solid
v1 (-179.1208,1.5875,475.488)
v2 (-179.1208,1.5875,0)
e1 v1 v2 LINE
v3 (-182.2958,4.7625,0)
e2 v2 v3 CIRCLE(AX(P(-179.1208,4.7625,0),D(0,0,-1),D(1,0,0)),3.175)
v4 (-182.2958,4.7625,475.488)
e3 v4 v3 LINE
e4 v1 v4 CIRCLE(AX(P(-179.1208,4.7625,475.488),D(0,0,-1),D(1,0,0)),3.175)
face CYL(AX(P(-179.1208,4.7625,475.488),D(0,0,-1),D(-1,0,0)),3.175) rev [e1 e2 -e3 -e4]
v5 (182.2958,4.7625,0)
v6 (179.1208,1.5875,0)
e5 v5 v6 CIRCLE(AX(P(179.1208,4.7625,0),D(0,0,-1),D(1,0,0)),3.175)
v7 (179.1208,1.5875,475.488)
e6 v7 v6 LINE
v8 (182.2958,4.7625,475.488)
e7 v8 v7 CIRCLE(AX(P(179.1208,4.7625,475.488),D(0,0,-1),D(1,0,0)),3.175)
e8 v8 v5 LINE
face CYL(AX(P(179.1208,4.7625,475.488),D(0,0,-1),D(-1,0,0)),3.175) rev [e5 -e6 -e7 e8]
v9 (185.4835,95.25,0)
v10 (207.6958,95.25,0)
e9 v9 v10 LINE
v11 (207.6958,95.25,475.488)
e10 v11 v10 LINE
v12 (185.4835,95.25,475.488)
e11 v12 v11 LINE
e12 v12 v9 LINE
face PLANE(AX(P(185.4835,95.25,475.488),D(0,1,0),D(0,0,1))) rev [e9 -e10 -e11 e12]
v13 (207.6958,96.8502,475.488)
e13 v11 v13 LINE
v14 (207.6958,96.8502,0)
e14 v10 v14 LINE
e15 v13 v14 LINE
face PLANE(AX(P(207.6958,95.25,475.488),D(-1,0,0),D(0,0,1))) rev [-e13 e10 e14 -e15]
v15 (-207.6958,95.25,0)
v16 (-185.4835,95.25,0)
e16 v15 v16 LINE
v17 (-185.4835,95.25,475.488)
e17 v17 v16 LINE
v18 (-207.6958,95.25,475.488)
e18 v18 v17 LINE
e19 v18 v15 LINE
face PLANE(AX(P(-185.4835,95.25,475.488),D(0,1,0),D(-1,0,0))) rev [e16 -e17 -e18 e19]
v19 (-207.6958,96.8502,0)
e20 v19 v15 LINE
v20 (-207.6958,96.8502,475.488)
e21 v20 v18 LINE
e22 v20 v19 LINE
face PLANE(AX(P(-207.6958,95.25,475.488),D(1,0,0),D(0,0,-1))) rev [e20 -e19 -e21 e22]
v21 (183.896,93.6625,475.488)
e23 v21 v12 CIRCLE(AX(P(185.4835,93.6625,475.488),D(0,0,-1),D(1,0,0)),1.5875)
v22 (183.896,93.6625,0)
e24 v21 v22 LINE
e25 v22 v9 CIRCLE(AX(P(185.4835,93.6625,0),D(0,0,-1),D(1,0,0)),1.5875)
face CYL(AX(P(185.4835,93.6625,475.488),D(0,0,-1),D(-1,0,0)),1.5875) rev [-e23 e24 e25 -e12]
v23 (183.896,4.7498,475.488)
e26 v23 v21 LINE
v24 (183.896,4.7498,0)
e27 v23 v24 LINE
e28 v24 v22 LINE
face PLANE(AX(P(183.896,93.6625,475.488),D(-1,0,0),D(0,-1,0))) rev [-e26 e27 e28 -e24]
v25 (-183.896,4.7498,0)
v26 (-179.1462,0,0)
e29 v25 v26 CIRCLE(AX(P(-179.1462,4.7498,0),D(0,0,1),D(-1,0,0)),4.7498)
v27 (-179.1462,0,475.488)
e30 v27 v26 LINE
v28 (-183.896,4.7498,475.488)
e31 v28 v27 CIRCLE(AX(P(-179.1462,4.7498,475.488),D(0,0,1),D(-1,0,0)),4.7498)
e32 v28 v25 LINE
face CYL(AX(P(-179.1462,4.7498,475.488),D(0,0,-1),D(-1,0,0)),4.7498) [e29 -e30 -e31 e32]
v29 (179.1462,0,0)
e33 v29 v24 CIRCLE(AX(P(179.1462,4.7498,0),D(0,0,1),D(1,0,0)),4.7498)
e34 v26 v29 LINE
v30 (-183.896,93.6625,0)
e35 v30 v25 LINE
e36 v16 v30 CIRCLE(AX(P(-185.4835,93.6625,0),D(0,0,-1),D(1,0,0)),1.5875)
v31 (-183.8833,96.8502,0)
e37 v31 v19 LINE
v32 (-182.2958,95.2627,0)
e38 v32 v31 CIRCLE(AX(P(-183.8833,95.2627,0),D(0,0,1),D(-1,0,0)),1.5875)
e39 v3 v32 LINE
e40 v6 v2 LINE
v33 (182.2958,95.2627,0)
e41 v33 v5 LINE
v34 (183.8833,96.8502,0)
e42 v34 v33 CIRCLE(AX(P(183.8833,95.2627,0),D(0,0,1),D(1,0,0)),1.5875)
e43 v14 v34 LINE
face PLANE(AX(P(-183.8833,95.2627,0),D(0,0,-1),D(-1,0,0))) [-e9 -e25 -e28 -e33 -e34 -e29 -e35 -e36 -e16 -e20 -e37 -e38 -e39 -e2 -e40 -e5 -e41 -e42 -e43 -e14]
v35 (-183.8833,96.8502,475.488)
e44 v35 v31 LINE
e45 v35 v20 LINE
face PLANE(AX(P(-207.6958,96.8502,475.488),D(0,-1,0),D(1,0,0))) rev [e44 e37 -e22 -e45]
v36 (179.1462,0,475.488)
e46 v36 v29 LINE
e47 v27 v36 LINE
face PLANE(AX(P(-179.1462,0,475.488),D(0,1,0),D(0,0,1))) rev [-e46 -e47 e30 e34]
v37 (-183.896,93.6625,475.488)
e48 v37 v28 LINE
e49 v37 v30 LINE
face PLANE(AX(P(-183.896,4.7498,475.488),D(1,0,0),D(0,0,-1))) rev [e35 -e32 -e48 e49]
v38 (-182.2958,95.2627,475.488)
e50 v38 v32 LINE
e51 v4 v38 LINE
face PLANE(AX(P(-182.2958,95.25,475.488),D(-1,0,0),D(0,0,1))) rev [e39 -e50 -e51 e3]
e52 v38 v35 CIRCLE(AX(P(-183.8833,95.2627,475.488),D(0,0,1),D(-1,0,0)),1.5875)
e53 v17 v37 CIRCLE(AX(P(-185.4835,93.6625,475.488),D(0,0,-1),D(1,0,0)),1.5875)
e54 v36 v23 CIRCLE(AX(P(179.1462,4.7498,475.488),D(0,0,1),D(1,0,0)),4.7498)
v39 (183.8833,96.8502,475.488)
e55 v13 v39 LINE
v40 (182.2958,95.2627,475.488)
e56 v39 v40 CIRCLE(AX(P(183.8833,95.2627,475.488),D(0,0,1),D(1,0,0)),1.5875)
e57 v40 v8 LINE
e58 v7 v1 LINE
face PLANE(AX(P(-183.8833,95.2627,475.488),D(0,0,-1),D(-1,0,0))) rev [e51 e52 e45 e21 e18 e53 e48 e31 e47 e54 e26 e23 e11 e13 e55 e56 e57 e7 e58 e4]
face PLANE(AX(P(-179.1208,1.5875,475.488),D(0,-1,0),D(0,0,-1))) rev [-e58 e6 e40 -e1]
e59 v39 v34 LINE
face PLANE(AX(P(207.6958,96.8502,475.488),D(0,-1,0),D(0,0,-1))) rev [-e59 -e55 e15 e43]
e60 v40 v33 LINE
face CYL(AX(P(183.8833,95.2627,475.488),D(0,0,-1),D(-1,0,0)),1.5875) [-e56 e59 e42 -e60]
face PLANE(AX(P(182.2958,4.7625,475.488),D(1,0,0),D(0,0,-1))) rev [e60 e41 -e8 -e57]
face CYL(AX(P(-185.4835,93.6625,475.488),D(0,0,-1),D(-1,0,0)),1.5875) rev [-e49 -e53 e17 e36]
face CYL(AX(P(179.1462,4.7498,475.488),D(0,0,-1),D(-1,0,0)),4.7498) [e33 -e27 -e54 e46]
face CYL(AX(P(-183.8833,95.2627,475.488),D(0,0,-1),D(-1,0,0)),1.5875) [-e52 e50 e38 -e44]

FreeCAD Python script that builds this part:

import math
import FreeCAD as App
import Part
import Sketcher
from FreeCAD import Vector
Q = App.Units.Quantity

doc = App.newDocument("Part")
body = doc.addObject("PartDesign::Body", "Body")

# Sketch on XY plane
sketch1 = body.newObject("Sketcher::SketchObject", "Sketch")
sketch1.AttachmentSupport = (doc.getObject("XY_Plane"), [""])
sketch1.MapMode = "FlatFace"
sketch1.addGeometry(Part.LineSegment(Vector(-179.1462, 0, 0), Vector(179.1462, 0, 0)), False)
sketch1.addGeometry(Part.ArcOfCircle(Part.Circle(Vector(179.1462, 4.7498, 0), Vector(0, 0, 1), 4.7498), math.radians(-90), math.radians(0)), False)
sketch1.addGeometry(Part.LineSegment(Vector(183.896, 4.7498, 0), Vector(183.896, 93.6625, 0)), False)
sketch1.addGeometry(Part.ArcOfCircle(Part.Circle(Vector(185.4835, 93.6625, 0), Vector(0, 0, 1), 1.5875), math.radians(90), math.radians(180)), False)
sketch1.addGeometry(Part.LineSegment(Vector(185.4835, 95.25, 0), Vector(207.6958, 95.25, 0)), False)
sketch1.addGeometry(Part.LineSegment(Vector(207.6958, 95.25, 0), Vector(207.6958, 96.8502, 0)), False)
sketch1.addGeometry(Part.LineSegment(Vector(207.6958, 96.8502, 0), Vector(183.8833, 96.8502, 0)), False)
sketch1.addGeometry(Part.ArcOfCircle(Part.Circle(Vector(183.8833, 95.2627, 0), Vector(0, 0, 1), 1.5875), math.radians(90), math.radians(180)), False)
sketch1.addGeometry(Part.LineSegment(Vector(182.2958, 95.2627, 0), Vector(182.2958, 4.7625, 0)), False)
sketch1.addGeometry(Part.ArcOfCircle(Part.Circle(Vector(179.1208, 4.7625, 0), Vector(0, 0, 1), 3.175), math.radians(-90), math.radians(0)), False)
sketch1.addGeometry(Part.LineSegment(Vector(179.1208, 1.5875, 0), Vector(-179.1208, 1.5875, 0)), False)
sketch1.addGeometry(Part.ArcOfCircle(Part.Circle(Vector(-179.1208, 4.7625, 0), Vector(0, 0, 1), 3.175), math.radians(-180), math.radians(-90)), False)
sketch1.addGeometry(Part.LineSegment(Vector(-182.2958, 4.7625, 0), Vector(-182.2958, 95.2627, 0)), False)
sketch1.addGeometry(Part.ArcOfCircle(Part.Circle(Vector(-183.8833, 95.2627, 0), Vector(0, 0, 1), 1.5875), math.radians(0), math.radians(90)), False)
sketch1.addGeometry(Part.LineSegment(Vector(-183.8833, 96.8502, 0), Vector(-207.6958, 96.8502, 0)), False)
sketch1.addGeometry(Part.LineSegment(Vector(-207.6958, 96.8502, 0), Vector(-207.6958, 95.25, 0)), False)
sketch1.addGeometry(Part.LineSegment(Vector(-207.6958, 95.25, 0), Vector(-185.4835, 95.25, 0)), False)
sketch1.addGeometry(Part.ArcOfCircle(Part.Circle(Vector(-185.4835, 93.6625, 0), Vector(0, 0, 1), 1.5875), math.radians(0), math.radians(90)), False)
sketch1.addGeometry(Part.LineSegment(Vector(-183.896, 93.6625, 0), Vector(-183.896, 4.7498, 0)), False)
sketch1.addGeometry(Part.ArcOfCircle(Part.Circle(Vector(-179.1462, 4.7498, 0), Vector(0, 0, 1), 4.7498), math.radians(-180), math.radians(-90)), False)
sketch1.addConstraint(Sketcher.Constraint("Tangent", 0, 2, 1, 1))
sketch1.addConstraint(Sketcher.Constraint("Tangent", 1, 2, 2, 1))
sketch1.addConstraint(Sketcher.Constraint("Tangent", 2, 2, 3, 2))
sketch1.addConstraint(Sketcher.Constraint("Tangent", 3, 1, 4, 1))
sketch1.addConstraint(Sketcher.Constraint("Coincident", 4, 2, 5, 1))
sketch1.addConstraint(Sketcher.Constraint("Coincident", 5, 2, 6, 1))
sketch1.addConstraint(Sketcher.Constraint("Tangent", 6, 2, 7, 1))
sketch1.addConstraint(Sketcher.Constraint("Tangent", 7, 2, 8, 1))
sketch1.addConstraint(Sketcher.Constraint("Tangent", 8, 2, 9, 2))
sketch1.addConstraint(Sketcher.Constraint("Tangent", 9, 1, 10, 1))
sketch1.addConstraint(Sketcher.Constraint("Tangent", 10, 2, 11, 2))
sketch1.addConstraint(Sketcher.Constraint("Tangent", 11, 1, 12, 1))
sketch1.addConstraint(Sketcher.Constraint("Tangent", 12, 2, 13, 1))
sketch1.addConstraint(Sketcher.Constraint("Tangent", 13, 2, 14, 1))
sketch1.addConstraint(Sketcher.Constraint("Coincident", 14, 2, 15, 1))
sketch1.addConstraint(Sketcher.Constraint("Coincident", 15, 2, 16, 1))
sketch1.addConstraint(Sketcher.Constraint("Tangent", 16, 2, 17, 2))
sketch1.addConstraint(Sketcher.Constraint("Tangent", 17, 1, 18, 1))
sketch1.addConstraint(Sketcher.Constraint("Tangent", 18, 2, 19, 1))
sketch1.addConstraint(Sketcher.Constraint("Tangent", 19, 2, 0, 1))
sketch1.addConstraint(Sketcher.Constraint("Horizontal", 0))
sketch1.addConstraint(Sketcher.Constraint("Vertical", 2))
sketch1.addConstraint(Sketcher.Constraint("Horizontal", 4))
sketch1.addConstraint(Sketcher.Constraint("Vertical", 5))
sketch1.addConstraint(Sketcher.Constraint("Horizontal", 6))
sketch1.addConstraint(Sketcher.Constraint("Vertical", 8))
sketch1.addConstraint(Sketcher.Constraint("Horizontal", 10))
sketch1.addConstraint(Sketcher.Constraint("Vertical", 12))
sketch1.addConstraint(Sketcher.Constraint("Horizontal", 14))
sketch1.addConstraint(Sketcher.Constraint("Vertical", 15))
sketch1.addConstraint(Sketcher.Constraint("Horizontal", 16))
sketch1.addConstraint(Sketcher.Constraint("Vertical", 18))
sketch1.addConstraint(Sketcher.Constraint("Equal", 3, 7))
sketch1.addConstraint(Sketcher.Constraint("Equal", 9, 11))
sketch1.addConstraint(Sketcher.Constraint("Equal", 7, 13))
sketch1.addConstraint(Sketcher.Constraint("Equal", 13, 17))
sketch1.addConstraint(Sketcher.Constraint("Equal", 1, 19))
sketch1.addConstraint(Sketcher.Constraint("Symmetric", 0, 2, 19, 2, -1, 1))
sketch1.addConstraint(Sketcher.Constraint("Symmetric", 7, 3, 13, 3, -2))
sketch1.addConstraint(Sketcher.Constraint("Symmetric", 4, 2, 15, 2, -2))
sketch1.addConstraint(Sketcher.Constraint("Radius", 1, Q("0.187 in")))
sketch1.addConstraint(Sketcher.Constraint("Radius", 3, Q("0.0625 in")))
sketch1.addConstraint(Sketcher.Constraint("Radius", 9, Q("0.125 in")))
sketch1.addConstraint(Sketcher.Constraint("DistanceX", 14, 2, 12, 2, Q("1 in")))
sketch1.addConstraint(Sketcher.Constraint("DistanceY", 9, 3, 3, 3, Q("3.5 in")))
sketch1.addConstraint(Sketcher.Constraint("DistanceX", 0, 1, 0, 2, Q("14.106 in")))
sketch1.addConstraint(Sketcher.Constraint("DistanceX", 10, 2, 10, 1, Q("14.104 in")))
sketch1.addConstraint(Sketcher.Constraint("DistanceY", 5, 1, 5, 2, Q("0.063 in")))
sketch1.addConstraint(Sketcher.Constraint("DistanceY", -1, 1, 3, 1, Q("3.75 in")))
pad1 = body.newObject("PartDesign::Pad", "Pad")
pad1.Profile = sketch1
pad1.Length = Q("18.72 in")

doc.recompute()
